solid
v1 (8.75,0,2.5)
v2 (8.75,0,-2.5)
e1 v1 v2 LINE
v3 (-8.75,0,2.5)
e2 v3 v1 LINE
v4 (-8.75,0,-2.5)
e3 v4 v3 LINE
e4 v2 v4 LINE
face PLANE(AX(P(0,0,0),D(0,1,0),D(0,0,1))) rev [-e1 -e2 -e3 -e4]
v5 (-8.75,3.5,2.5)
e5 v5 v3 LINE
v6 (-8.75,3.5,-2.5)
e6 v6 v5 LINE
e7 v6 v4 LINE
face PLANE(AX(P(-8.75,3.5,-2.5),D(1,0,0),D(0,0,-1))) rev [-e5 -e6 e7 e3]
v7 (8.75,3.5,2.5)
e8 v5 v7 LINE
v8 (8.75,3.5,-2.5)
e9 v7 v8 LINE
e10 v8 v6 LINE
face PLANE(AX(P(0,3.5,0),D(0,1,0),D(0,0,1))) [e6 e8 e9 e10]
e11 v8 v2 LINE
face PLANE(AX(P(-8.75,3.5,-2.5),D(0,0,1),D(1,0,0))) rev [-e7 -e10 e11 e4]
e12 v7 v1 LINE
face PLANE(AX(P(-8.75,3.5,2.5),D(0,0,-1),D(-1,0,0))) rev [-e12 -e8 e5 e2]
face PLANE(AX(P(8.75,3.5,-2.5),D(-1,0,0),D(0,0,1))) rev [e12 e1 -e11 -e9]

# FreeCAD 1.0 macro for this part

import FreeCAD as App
import Part
import Sketcher
from FreeCAD import Vector
Q = App.Units.Quantity

doc = App.newDocument("Part")
body = doc.addObject("PartDesign::Body", "Body")

sketch1 = body.newObject("Sketcher::SketchObject", "Sketch")
sketch1.AttachmentSupport = (doc.getObject("XZ_Plane"), [""])
sketch1.MapMode = "FlatFace"
sketch1.addGeometry(Part.LineSegment(Vector(-9, -2, 0), Vector(-9, 2, 0)), False)
sketch1.addGeometry(Part.LineSegment(Vector(-9, 2, 0), Vector(9, 2, 0)), False)
sketch1.addGeometry(Part.LineSegment(Vector(9, 2, 0), Vector(9, -2, 0)), False)
sketch1.addGeometry(Part.LineSegment(Vector(9, -2, 0), Vector(-9, -2, 0)), False)
sketch1.addConstraint(Sketcher.Constraint("Coincident", 0, 2, 1, 1))
sketch1.addConstraint(Sketcher.Constraint("Coincident", 1, 2, 2, 1))
sketch1.addConstraint(Sketcher.Constraint("Coincident", 2, 2, 3, 1))
sketch1.addConstraint(Sketcher.Constraint("Coincident", 3, 2, 0, 1))
sketch1.addConstraint(Sketcher.Constraint("Vertical", 0))
sketch1.addConstraint(Sketcher.Constraint("Horizontal", 1))
sketch1.addConstraint(Sketcher.Constraint("Vertical", 2))
sketch1.addConstraint(Sketcher.Constraint("Horizontal", 3))
sketch1.addConstraint(Sketcher.Constraint("Symmetric", 0, 2, 2, 2, -1, 1))
sketch1.addConstraint(Sketcher.Constraint("DistanceY", 0, 1, 0, 2, Q("5 mm")))
sketch1.addConstraint(Sketcher.Constraint("DistanceX", 1, 1, 1, 2, Q("17.5 mm")))
pad1 = body.newObject("PartDesign::Pad", "Pad")
pad1.Profile = sketch1
pad1.Length = 3.5
pad1.Reversed = True

doc.recompute()
